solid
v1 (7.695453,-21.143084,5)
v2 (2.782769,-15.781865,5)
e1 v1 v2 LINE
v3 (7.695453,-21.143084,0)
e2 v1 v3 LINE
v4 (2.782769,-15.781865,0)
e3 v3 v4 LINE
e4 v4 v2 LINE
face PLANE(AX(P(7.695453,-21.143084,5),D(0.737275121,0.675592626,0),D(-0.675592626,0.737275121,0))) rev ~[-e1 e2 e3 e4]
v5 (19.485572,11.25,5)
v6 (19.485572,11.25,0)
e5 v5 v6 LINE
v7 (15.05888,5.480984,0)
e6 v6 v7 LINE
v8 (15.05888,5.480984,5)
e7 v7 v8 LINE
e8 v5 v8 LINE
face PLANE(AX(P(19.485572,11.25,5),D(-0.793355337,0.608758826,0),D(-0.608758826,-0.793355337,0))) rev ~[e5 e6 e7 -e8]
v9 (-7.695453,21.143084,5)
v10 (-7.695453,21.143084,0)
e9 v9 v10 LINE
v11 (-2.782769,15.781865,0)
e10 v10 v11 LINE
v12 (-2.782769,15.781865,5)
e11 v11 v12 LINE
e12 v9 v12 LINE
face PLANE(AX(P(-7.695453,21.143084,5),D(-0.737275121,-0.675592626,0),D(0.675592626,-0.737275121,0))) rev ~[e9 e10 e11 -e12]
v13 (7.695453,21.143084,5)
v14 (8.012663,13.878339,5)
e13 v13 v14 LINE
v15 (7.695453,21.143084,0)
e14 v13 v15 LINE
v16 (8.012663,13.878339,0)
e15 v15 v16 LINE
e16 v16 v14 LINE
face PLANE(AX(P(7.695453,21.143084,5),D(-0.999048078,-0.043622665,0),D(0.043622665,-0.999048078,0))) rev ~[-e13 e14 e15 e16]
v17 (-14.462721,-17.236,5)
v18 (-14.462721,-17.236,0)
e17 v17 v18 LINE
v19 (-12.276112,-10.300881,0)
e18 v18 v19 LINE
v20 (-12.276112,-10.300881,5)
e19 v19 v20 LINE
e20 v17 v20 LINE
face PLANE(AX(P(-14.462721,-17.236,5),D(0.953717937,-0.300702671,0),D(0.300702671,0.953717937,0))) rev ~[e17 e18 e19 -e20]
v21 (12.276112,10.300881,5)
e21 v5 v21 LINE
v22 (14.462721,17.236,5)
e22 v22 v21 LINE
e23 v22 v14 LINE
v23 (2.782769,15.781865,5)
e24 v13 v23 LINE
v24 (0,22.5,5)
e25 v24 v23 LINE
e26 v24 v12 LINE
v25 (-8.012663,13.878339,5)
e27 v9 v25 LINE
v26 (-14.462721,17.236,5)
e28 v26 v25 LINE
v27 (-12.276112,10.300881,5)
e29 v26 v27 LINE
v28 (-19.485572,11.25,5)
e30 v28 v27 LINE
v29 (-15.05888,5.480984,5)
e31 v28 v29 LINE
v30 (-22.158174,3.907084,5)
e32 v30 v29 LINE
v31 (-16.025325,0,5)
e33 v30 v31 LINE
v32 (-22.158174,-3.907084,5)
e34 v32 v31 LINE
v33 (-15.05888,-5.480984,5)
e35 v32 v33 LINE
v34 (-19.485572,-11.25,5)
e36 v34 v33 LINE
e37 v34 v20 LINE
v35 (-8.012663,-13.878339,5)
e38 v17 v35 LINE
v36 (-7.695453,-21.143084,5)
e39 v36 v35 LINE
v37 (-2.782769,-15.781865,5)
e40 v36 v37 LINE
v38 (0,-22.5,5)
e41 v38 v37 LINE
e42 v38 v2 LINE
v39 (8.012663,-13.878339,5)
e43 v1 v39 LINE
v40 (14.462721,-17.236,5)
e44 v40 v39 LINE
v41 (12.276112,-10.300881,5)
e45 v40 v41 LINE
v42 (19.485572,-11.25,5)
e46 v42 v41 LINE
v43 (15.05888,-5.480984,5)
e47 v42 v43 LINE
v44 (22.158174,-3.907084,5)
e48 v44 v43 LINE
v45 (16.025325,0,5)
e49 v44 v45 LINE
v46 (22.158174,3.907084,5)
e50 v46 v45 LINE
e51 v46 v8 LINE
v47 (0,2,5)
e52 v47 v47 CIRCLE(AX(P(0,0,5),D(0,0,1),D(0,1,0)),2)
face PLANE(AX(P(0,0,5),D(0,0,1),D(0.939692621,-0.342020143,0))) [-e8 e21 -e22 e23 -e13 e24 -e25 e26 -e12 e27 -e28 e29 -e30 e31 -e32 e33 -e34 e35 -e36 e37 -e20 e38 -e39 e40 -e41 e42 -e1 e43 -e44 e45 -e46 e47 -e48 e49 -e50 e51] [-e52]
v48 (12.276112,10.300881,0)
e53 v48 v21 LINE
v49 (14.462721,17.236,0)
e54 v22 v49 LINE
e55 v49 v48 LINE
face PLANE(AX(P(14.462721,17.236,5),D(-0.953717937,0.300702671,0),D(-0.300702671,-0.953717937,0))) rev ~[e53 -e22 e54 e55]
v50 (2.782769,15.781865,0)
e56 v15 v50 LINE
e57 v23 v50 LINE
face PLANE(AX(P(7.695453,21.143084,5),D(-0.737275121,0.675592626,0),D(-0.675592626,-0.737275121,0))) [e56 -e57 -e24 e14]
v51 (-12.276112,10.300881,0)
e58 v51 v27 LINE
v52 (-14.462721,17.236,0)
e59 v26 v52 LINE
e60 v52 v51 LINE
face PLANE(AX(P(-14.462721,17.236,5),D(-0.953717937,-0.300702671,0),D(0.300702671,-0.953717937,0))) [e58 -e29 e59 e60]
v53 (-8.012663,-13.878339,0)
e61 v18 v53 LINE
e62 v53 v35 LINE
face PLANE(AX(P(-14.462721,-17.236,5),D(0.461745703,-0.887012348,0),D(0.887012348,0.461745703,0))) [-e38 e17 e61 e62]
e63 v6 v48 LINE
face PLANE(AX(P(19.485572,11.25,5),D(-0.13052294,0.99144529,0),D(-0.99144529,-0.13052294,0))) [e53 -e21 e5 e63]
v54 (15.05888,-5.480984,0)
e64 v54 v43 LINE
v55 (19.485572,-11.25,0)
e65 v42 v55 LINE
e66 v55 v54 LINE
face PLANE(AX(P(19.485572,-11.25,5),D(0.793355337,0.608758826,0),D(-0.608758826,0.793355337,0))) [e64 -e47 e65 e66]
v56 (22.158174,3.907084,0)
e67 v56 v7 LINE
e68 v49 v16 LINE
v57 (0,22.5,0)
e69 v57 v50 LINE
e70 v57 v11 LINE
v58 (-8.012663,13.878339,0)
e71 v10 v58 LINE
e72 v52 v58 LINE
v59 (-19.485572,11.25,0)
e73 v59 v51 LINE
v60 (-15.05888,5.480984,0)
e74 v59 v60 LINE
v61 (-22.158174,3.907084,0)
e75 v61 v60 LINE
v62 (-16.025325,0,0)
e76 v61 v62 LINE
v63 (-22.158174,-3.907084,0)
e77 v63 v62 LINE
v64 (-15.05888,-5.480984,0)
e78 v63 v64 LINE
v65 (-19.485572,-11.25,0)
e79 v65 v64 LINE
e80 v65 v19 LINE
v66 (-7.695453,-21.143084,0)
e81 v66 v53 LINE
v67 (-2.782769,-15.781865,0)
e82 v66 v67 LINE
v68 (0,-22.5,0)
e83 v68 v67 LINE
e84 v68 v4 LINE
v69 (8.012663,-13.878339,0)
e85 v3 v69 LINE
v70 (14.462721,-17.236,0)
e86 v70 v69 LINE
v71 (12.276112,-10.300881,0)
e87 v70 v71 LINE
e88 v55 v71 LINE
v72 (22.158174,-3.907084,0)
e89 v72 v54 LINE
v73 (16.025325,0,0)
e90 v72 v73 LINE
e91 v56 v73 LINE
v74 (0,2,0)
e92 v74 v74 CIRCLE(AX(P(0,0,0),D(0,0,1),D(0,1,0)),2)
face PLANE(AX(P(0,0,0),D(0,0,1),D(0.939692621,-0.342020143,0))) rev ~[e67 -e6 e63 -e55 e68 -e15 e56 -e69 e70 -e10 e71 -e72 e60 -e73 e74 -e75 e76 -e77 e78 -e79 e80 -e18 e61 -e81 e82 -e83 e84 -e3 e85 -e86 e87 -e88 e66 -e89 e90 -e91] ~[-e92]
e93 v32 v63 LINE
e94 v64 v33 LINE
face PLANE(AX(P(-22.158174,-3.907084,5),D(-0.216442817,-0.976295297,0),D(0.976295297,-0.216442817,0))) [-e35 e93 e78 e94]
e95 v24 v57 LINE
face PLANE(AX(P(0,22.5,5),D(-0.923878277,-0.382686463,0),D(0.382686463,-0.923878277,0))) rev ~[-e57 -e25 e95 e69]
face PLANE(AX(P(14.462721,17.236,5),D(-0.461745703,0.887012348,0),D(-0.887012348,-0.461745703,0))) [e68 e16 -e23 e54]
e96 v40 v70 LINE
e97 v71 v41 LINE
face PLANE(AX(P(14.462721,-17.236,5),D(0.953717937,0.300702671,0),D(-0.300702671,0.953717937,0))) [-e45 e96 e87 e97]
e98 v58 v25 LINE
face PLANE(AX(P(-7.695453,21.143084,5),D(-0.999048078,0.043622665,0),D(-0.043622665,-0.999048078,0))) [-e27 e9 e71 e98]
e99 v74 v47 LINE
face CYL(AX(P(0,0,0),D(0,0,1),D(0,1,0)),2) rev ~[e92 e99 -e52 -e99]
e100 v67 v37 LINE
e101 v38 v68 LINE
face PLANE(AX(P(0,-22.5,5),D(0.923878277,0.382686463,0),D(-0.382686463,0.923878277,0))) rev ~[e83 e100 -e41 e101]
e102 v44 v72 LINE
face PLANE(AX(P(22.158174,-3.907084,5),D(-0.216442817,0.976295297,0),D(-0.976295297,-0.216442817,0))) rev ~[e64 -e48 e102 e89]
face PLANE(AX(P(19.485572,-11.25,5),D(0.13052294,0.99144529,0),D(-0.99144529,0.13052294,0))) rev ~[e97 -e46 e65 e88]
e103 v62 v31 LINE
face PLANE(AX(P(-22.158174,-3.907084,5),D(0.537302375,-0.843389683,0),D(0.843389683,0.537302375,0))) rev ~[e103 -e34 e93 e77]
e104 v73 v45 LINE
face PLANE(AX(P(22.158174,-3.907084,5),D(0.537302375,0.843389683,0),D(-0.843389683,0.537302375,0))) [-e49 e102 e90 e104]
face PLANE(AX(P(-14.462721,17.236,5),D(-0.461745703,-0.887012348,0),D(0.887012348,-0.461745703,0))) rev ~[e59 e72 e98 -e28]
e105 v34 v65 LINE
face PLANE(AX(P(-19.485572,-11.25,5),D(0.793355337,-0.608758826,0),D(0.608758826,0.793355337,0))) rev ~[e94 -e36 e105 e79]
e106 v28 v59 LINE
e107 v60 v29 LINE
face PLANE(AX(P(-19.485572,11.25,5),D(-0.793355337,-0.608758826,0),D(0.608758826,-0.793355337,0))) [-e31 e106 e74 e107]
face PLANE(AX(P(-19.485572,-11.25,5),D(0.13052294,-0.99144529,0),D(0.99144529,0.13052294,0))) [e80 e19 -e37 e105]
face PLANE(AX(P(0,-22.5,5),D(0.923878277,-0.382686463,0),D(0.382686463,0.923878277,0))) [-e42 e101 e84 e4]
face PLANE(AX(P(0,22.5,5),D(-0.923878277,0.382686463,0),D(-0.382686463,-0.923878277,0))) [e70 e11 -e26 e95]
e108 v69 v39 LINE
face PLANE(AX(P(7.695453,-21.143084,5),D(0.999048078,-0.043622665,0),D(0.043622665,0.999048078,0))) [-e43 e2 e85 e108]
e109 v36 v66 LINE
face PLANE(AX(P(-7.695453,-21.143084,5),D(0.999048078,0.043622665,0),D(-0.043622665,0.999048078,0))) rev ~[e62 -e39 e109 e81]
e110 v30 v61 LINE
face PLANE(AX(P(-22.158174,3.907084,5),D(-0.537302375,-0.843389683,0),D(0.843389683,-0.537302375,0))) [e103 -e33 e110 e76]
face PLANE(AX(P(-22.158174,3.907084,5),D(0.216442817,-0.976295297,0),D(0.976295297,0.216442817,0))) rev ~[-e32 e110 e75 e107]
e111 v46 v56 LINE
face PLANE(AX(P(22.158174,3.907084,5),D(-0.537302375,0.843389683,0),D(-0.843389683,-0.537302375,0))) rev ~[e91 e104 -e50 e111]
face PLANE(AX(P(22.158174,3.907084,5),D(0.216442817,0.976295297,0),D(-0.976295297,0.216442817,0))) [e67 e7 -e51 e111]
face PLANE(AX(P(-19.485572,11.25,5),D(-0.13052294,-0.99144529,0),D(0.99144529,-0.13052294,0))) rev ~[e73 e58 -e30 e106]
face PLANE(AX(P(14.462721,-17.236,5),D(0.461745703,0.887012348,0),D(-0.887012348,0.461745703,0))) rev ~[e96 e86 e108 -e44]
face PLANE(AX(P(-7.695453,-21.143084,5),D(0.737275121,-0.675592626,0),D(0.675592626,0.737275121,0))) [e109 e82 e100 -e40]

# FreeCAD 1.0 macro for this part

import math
import FreeCAD as App
import Part
import Sketcher
from FreeCAD import Vector
Q = App.Units.Quantity

doc = App.newDocument("Part")
body = doc.addObject("PartDesign::Body", "Body")

sketch1 = doc.addObject("Sketcher::SketchObject", "Sketch")
body.addObject(sketch1)
sketch1.AttachmentSupport = (doc.XY_Plane, [""])
sketch1.MapMode = "FlatFace"
sketch1.addGeometry(Part.Circle(Vector(0, 0, 0), Vector(0, 0, 1), 12), False)
sketch1.addConstraint([
    Sketcher.Constraint("Coincident", 0, 3, -1, 1),
    Sketcher.Constraint("Diameter", 0, 25.0),
])
pad1 = doc.addObject("PartDesign::Pad", "Pad")
body.addObject(pad1)
pad1.Profile = sketch1
pad1.Length = 5

sketch2 = doc.addObject("Sketcher::SketchObject", "Sketch001")
body.addObject(sketch2)
sketch2.AttachmentSupport = (doc.XY_Plane, [""])
sketch2.MapMode = "FlatFace"
sketch2.AttachmentOffset = App.Placement(Vector(0, 0, 5), App.Rotation())
sketch2.addGeometry([
    Part.LineSegment(Vector(4, 12, 0), Vector(0, 22, 0)),
    Part.LineSegment(Vector(0, 22, 0), Vector(-4, 12, 0)),
    Part.ArcOfCircle(Part.Circle(Vector(0, 0, 0), Vector(0, 0, 1), 12), math.radians(69), math.radians(111)),
], False)
sketch2.addConstraint([
    Sketcher.Constraint("Coincident", 0, 2, 1, 1),
    Sketcher.Constraint("Coincident", 1, 2, 2, 2),
    Sketcher.Constraint("Coincident", 2, 1, 0, 1),
    Sketcher.Constraint("Coincident", 2, 3, -1, 1),
    Sketcher.Constraint("PointOnObject", 0, 2, -2),
    Sketcher.Constraint("Horizontal", 1, 2, 2, 1),
    Sketcher.Constraint("Radius", 2, 12.5),
    Sketcher.Constraint("Angle", 0, Q("112.5002 deg")),
    Sketcher.Constraint("DistanceY", -1, 1, 0, 2, 22.5),
])
pad2 = doc.addObject("PartDesign::Pad", "Pad001")
body.addObject(pad2)
pad2.Profile = sketch2
pad2.Length = 5
pad2.Reversed = True
doc.recompute()

polarpattern = doc.addObject("PartDesign::PolarPattern", "PolarPattern")
body.addObject(polarpattern)
polarpattern.Originals = [pad2]
polarpattern.Axis = (doc.Z_Axis, [""])
polarpattern.Angle = 360
polarpattern.Occurrences = 18
body.Tip = polarpattern

sketch3 = doc.addObject("Sketcher::SketchObject", "Sketch002")
body.addObject(sketch3)
sketch3.AttachmentSupport = (doc.XY_Plane, [""])
sketch3.MapMode = "FlatFace"
sketch3.addGeometry([
    Part.Circle(Vector(0, 0, 0), Vector(0, 0, 1), 2),
    Part.Circle(Vector(0, 0, 0), Vector(0, 0, 1), 2),
], False)
sketch3.addConstraint([
    Sketcher.Constraint("Coincident", 0, 3, -1, 1),
    Sketcher.Constraint("Coincident", 1, 3, -1, 1),
    Sketcher.Constraint("Equal", 0, 1),
    Sketcher.Constraint("Diameter", 0, 4.0),
])
doc.recompute()
hole = doc.addObject("PartDesign::Hole", "Hole")
body.addObject(hole)
hole.Profile = sketch3
hole.ThreadType = "None"
hole.Diameter = 4
hole.DepthType = "ThroughAll"
hole.Reversed = True

doc.recompute()
